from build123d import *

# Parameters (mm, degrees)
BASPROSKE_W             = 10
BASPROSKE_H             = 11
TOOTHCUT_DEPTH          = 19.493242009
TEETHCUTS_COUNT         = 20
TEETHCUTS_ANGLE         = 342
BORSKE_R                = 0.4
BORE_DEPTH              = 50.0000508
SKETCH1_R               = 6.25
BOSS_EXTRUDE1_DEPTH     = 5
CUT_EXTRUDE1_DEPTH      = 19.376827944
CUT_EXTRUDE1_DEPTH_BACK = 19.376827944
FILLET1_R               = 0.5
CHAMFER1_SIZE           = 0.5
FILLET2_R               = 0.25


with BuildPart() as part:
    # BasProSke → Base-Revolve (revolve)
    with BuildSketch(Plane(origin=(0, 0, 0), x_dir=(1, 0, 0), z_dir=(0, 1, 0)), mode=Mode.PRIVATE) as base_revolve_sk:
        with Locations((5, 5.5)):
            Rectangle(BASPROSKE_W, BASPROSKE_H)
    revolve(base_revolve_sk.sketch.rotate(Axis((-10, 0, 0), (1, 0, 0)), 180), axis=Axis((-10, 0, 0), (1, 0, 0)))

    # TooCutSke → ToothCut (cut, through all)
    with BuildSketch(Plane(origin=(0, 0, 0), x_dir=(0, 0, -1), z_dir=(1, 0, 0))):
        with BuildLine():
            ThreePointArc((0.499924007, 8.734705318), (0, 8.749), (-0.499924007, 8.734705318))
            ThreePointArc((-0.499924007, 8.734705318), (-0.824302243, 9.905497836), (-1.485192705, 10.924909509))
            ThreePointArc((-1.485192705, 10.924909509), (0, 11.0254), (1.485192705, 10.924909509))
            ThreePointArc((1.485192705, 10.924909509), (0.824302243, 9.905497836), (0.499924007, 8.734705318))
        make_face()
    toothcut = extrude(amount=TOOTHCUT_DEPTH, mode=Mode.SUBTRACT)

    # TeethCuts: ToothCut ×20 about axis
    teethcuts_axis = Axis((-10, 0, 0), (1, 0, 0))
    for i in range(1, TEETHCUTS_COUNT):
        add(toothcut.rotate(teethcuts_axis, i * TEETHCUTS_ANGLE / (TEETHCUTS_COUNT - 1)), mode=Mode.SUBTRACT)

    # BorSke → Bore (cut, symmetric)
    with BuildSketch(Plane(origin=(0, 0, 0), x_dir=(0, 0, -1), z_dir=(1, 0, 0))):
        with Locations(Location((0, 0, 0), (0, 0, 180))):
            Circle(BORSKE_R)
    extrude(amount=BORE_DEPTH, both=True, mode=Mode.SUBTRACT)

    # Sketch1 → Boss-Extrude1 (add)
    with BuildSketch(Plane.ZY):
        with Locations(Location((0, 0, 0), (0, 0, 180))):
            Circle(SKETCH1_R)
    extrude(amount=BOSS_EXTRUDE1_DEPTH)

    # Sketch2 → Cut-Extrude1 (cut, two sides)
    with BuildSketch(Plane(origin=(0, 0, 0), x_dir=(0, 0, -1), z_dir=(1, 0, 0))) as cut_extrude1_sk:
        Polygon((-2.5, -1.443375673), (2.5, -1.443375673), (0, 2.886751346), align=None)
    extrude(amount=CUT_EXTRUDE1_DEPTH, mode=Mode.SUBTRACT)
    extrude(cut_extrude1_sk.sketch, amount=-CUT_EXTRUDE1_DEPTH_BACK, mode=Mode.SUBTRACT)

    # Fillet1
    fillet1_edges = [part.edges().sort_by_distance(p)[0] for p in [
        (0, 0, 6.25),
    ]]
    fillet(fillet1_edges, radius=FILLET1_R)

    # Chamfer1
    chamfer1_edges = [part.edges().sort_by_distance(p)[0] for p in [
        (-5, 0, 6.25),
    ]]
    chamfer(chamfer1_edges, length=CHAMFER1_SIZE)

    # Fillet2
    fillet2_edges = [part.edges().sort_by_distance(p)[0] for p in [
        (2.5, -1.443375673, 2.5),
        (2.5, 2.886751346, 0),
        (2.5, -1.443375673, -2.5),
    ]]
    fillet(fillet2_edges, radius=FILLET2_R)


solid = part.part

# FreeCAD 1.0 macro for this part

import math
import FreeCAD as App
import Part
import Sketcher

V = App.Vector
Q = App.Units.Quantity


def edges_at(feature, points):
    """Names of the edges that pass closest to the given points."""
    edges = feature.Shape.Edges
    near = lambda p: min(range(len(edges)), key=lambda i: edges[i].distToShape(Part.Vertex(*p))[0])
    return sorted({f"Edge{near(p) + 1}" for p in points})


def add_polygon(sketch, points):
    """Adds a closed chain of lines whose ends are joined by coincident constraints."""
    first, n = sketch.GeometryCount, len(points)
    for a, b in zip(points, points[1:] + points[:1]):
        sketch.addGeometry(Part.LineSegment(App.Vector(*a, 0), App.Vector(*b, 0)), False)
    for i in range(n):
        sketch.addConstraint(Sketcher.Constraint("Coincident", first + i, 2, first + (i + 1) % n, 1))

doc = App.newDocument("Part")
body = doc.addObject("PartDesign::Body", "Body")

# Sketch on XZ plane
sketch1 = body.newObject("Sketcher::SketchObject", "Sketch")
sketch1.AttachmentSupport = (doc.getObject("XZ_Plane"), [""])
sketch1.MapMode = "FlatFace"
add_polygon(sketch1, [(0, -11), (0, 0), (10, 0), (10, -11)])  # lines 0-3
sketch1.addConstraint(Sketcher.Constraint("Vertical", 0))
sketch1.addConstraint(Sketcher.Constraint("Horizontal", 1))
sketch1.addConstraint(Sketcher.Constraint("Vertical", 2))
sketch1.addConstraint(Sketcher.Constraint("Horizontal", 3))
sketch1.addConstraint(Sketcher.Constraint("Coincident", 0, 2, -1, 1))
sketch1.addConstraint(Sketcher.Constraint("DistanceX", 1, 1, 1, 2, 10.0))
sketch1.addConstraint(Sketcher.Constraint("DistanceY", 0, 1, 0, 2, 11.0))
revolution = body.newObject("PartDesign::Revolution", "Revolution")
revolution.Profile = sketch1
revolution.ReferenceAxis = (sketch1, ["H_Axis"])
revolution.Angle = 360

# Sketch on YZ plane
sketch2 = body.newObject("Sketcher::SketchObject", "Sketch001")
sketch2.AttachmentSupport = (doc.getObject("YZ_Plane"), [""])
sketch2.MapMode = "FlatFace"
sketch2.addGeometry(Part.ArcOfCircle(Part.Circle(V(0, 0, 0), V(0, 0, 1), 8.7), math.radians(-3.28), math.radians(3.28)), False)
sketch2.addGeometry(Part.ArcOfCircle(Part.Circle(V(8.3, -4.5, 0), V(0, 0, 1), 4), math.radians(48), math.radians(83)), False)
sketch2.addGeometry(Part.ArcOfCircle(Part.Circle(V(0, 0, 0), V(0, 0, 1), 11), math.radians(-7.74), math.radians(7.74)), False)
sketch2.addGeometry(Part.ArcOfCircle(Part.Circle(V(8.3, 4.5, 0), V(0, 0, 1), 4), math.radians(-83), math.radians(-48)), False)
sketch2.addConstraint(Sketcher.Constraint("Coincident", 0, 1, 1, 2))
sketch2.addConstraint(Sketcher.Constraint("Coincident", 1, 1, 2, 1))
sketch2.addConstraint(Sketcher.Constraint("Coincident", 2, 2, 3, 2))
sketch2.addConstraint(Sketcher.Constraint("Coincident", 3, 1, 0, 2))
sketch2.addConstraint(Sketcher.Constraint("Coincident", 0, 3, -1, 1))
sketch2.addConstraint(Sketcher.Constraint("Coincident", 2, 3, -1, 1))
sketch2.addConstraint(Sketcher.Constraint("Equal", 1, 3))
sketch2.addConstraint(Sketcher.Constraint("Symmetric", 1, 3, 3, 3, -1))
sketch2.addConstraint(Sketcher.Constraint("Radius", 1, 4.0))
sketch2.addConstraint(Sketcher.Constraint("Radius", 0, 8.749))
sketch2.addConstraint(Sketcher.Constraint("Radius", 2, 11.0254))
sketch2.addConstraint(Sketcher.Constraint("DistanceY", 1, 3, -1, 1, 4.47219))
sketch2.addConstraint(Sketcher.Constraint("DistanceX", -1, 1, 1, 1, 10.92491))
pocket1 = body.newObject("PartDesign::Pocket", "Pocket")
pocket1.Profile = sketch2
pocket1.Type = "ThroughAll"
pocket1.Reversed = True
doc.recompute()

polarpattern = body.newObject("PartDesign::PolarPattern", "PolarPattern")
polarpattern.Originals = [pocket1]
polarpattern.Axis = (doc.getObject("X_Axis"), [""])
polarpattern.Angle = 360
polarpattern.Occurrences = 20
body.Tip = polarpattern

# Sketch on YZ plane
sketch3 = body.newObject("Sketcher::SketchObject", "Sketch002")
sketch3.AttachmentSupport = (doc.getObject("YZ_Plane"), [""])
sketch3.MapMode = "FlatFace"
sketch3.addGeometry(Part.Circle(V(0, 0, 0), V(0, 0, 1), 0.4), False)
sketch3.addConstraint(Sketcher.Constraint("Coincident", 0, 3, -1, 1))
sketch3.addConstraint(Sketcher.Constraint("Diameter", 0, 0.8))
pocket2 = body.newObject("PartDesign::Pocket", "Pocket001")
pocket2.Profile = sketch3
pocket2.Length = 100.000102
pocket2.Midplane = True

# Sketch on YZ plane
sketch4 = body.newObject("Sketcher::SketchObject", "Sketch003")
sketch4.AttachmentSupport = (doc.getObject("YZ_Plane"), [""])
sketch4.MapMode = "FlatFace"
sketch4.addGeometry(Part.Circle(V(0, 0, 0), V(0, 0, 1), 6), False)
sketch4.addConstraint(Sketcher.Constraint("Coincident", 0, 3, -1, 1))
sketch4.addConstraint(Sketcher.Constraint("Diameter", 0, 12.5))
pad1 = body.newObject("PartDesign::Pad", "Pad")
pad1.Profile = sketch4
pad1.Length = 5
pad1.Reversed = True

# Sketch on YZ plane
sketch5 = body.newObject("Sketcher::SketchObject", "Sketch004")
sketch5.AttachmentSupport = (doc.getObject("YZ_Plane"), [""])
sketch5.MapMode = "FlatFace"
add_polygon(sketch5, [(-1, 2), (-1, -2), (3, 0)])  # lines 0-2
sketch5.addConstraint(Sketcher.Constraint("Vertical", 0))
sketch5.addConstraint(Sketcher.Constraint("PointOnObject", 1, 2, -1))
sketch5.addConstraint(Sketcher.Constraint("Equal", 1, 2))
sketch5.addConstraint(Sketcher.Constraint("DistanceY", 0, 2, 0, 1, 5.0))
sketch5.addConstraint(Sketcher.Constraint("Angle", 1, Q("30 deg")))
sketch5.addConstraint(Sketcher.Constraint("DistanceX", -1, 1, 1, 2, 2.886751))
pocket3 = body.newObject("PartDesign::Pocket", "Pocket002")
pocket3.Profile = sketch5
pocket3.Type = "ThroughAll"
pocket3.Midplane = True
doc.recompute()

fillet = body.newObject("PartDesign::Fillet", "Fillet")
fillet.Base = (pocket3, edges_at(pocket3, [(0, 0, 6.25)]))
fillet.Radius = 0.5
doc.recompute()

chamfer = body.newObject("PartDesign::Chamfer", "Chamfer")
chamfer.Base = (fillet, edges_at(fillet, [(-5, 0, 6.25)]))
chamfer.Size = 0.5
doc.recompute()

fillet2 = body.newObject("PartDesign::Fillet", "Fillet001")
fillet2.Base = (chamfer, edges_at(chamfer, [(2.5, -1.443, 2.5), (2.5, 2.887, 0), (2.5, -1.443, -2.5)]))
fillet2.Radius = 0.25

doc.recompute()
